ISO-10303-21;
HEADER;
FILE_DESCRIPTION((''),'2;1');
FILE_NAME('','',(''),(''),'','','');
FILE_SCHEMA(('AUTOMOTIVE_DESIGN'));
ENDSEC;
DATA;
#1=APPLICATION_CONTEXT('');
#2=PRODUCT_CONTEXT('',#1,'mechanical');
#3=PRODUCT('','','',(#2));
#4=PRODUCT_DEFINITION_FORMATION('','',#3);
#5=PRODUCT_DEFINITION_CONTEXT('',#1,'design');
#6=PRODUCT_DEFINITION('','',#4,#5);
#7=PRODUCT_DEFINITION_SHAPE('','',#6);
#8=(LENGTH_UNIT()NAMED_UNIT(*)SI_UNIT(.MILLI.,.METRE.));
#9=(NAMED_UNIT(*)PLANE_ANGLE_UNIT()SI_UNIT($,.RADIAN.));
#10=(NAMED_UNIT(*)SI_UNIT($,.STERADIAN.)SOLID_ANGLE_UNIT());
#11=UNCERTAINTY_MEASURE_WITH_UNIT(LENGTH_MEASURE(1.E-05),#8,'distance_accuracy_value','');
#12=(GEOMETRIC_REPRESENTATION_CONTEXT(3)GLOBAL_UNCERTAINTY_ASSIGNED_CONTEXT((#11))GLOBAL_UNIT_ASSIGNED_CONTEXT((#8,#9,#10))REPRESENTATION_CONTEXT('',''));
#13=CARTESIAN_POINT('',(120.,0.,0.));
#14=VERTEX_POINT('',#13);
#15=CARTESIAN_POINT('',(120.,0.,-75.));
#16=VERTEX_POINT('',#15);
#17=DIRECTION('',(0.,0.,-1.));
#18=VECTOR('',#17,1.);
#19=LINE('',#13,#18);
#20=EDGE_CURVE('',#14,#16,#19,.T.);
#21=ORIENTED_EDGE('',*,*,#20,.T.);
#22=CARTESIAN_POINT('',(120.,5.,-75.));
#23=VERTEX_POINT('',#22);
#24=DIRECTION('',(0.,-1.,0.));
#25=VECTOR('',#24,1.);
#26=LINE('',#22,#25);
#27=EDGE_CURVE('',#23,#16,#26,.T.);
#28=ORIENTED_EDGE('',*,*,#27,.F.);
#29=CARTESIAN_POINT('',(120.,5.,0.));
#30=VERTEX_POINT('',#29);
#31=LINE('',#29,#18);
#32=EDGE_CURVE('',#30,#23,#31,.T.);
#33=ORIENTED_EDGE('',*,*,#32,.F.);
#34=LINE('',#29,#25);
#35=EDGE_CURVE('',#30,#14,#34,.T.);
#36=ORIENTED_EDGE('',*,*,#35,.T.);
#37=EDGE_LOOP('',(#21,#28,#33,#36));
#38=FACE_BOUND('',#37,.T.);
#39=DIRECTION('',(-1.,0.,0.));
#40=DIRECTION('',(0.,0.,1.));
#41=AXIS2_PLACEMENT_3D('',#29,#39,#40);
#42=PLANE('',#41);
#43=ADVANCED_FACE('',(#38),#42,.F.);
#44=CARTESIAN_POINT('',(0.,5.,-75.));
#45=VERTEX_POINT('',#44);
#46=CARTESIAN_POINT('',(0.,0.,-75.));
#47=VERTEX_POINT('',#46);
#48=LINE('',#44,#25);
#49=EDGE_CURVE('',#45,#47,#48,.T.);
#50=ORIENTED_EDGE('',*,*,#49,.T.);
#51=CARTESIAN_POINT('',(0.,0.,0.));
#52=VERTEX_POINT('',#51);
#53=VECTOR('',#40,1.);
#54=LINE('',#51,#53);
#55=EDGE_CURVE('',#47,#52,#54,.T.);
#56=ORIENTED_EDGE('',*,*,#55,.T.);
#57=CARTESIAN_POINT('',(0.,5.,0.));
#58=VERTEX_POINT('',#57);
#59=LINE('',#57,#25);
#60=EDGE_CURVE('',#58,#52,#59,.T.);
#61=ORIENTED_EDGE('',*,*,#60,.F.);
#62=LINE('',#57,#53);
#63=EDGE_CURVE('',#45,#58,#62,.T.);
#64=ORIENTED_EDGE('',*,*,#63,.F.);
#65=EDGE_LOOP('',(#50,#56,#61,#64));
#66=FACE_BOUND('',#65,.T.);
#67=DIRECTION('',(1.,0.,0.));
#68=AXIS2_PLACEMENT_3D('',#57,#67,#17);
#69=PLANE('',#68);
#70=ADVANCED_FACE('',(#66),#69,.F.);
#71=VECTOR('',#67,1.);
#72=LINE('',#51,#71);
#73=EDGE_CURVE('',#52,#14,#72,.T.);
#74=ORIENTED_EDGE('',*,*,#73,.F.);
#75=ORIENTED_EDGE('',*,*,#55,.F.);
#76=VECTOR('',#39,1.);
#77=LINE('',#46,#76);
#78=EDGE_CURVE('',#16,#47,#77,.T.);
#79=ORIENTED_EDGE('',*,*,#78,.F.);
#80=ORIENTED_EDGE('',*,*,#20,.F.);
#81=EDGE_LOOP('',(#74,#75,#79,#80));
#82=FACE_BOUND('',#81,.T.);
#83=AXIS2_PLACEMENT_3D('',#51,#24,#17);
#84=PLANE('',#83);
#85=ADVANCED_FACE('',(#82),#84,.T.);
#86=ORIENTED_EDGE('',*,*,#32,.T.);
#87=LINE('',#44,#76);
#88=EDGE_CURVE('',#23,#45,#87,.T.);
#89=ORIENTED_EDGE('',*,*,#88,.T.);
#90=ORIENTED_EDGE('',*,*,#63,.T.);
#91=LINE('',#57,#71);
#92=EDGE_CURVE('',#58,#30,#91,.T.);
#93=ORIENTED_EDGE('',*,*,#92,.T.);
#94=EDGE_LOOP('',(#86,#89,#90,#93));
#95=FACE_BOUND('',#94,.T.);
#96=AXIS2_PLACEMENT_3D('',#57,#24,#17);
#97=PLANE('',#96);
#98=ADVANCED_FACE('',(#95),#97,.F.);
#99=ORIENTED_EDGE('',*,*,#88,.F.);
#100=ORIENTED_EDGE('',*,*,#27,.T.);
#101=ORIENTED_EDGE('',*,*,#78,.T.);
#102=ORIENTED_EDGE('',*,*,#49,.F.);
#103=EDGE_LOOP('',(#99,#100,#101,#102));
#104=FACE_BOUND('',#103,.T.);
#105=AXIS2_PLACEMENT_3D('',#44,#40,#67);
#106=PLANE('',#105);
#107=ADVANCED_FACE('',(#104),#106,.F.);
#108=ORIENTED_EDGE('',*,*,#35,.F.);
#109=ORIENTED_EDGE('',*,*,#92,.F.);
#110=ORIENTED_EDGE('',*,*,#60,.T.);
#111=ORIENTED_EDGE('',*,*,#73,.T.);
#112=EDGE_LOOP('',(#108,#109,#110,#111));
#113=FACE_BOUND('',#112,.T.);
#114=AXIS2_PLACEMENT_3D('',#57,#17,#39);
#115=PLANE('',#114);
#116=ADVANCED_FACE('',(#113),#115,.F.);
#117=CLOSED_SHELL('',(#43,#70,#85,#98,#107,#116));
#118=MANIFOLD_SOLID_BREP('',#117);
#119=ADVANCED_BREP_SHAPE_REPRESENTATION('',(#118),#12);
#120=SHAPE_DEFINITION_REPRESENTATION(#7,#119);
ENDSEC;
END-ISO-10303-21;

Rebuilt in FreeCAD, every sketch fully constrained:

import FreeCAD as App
import Part
import Sketcher
from FreeCAD import Vector
Q = App.Units.Quantity

doc = App.newDocument("Part")
params = doc.addObject("Spreadsheet::Sheet", "Params")
for row, (alias, value) in enumerate([
    ("sketch1_width", "120 mm"),
    ("sketch1_height", "75 mm"),
    ("pad1_length", "5 mm"),
], start=1):
    params.set(f"A{row}", alias)
    params.set(f"B{row}", "=" + value)
    params.setAlias(f"B{row}", alias)

body = doc.addObject("PartDesign::Body", "Body")

# Sketch on XZ plane
sketch1 = body.newObject("Sketcher::SketchObject", "Sketch")
sketch1.AttachmentSupport = (doc.getObject("XZ_Plane"), [""])
sketch1.MapMode = "FlatFace"
sketch1.addGeometry([
    Part.LineSegment(Vector(0, -75, 0), Vector(0, 0, 0)),
    Part.LineSegment(Vector(0, 0, 0), Vector(120, 0, 0)),
    Part.LineSegment(Vector(120, 0, 0), Vector(120, -75, 0)),
    Part.LineSegment(Vector(120, -75, 0), Vector(0, -75, 0)),
], False)
sketch1.addConstraint([
    Sketcher.Constraint("Coincident", 0, 2, 1, 1),
    Sketcher.Constraint("Coincident", 1, 2, 2, 1),
    Sketcher.Constraint("Coincident", 2, 2, 3, 1),
    Sketcher.Constraint("Coincident", 3, 2, 0, 1),
    Sketcher.Constraint("Vertical", 0),
    Sketcher.Constraint("Horizontal", 1),
    Sketcher.Constraint("Vertical", 2),
    Sketcher.Constraint("Horizontal", 3),
    Sketcher.Constraint("Coincident", 0, 2, -1, 1),
    Sketcher.Constraint("DistanceX", 1, 1, 1, 2, Q("120 mm")),
    Sketcher.Constraint("DistanceY", 0, 1, 0, 2, Q("75 mm")),
])
sketch1.setExpression("Constraints[9]", "Params.sketch1_width")
sketch1.setExpression("Constraints[10]", "Params.sketch1_height")
pad1 = body.newObject("PartDesign::Pad", "Pad")
pad1.Profile = sketch1
pad1.setExpression("Length", "Params.pad1_length")
pad1.Reversed = True

doc.recompute()
